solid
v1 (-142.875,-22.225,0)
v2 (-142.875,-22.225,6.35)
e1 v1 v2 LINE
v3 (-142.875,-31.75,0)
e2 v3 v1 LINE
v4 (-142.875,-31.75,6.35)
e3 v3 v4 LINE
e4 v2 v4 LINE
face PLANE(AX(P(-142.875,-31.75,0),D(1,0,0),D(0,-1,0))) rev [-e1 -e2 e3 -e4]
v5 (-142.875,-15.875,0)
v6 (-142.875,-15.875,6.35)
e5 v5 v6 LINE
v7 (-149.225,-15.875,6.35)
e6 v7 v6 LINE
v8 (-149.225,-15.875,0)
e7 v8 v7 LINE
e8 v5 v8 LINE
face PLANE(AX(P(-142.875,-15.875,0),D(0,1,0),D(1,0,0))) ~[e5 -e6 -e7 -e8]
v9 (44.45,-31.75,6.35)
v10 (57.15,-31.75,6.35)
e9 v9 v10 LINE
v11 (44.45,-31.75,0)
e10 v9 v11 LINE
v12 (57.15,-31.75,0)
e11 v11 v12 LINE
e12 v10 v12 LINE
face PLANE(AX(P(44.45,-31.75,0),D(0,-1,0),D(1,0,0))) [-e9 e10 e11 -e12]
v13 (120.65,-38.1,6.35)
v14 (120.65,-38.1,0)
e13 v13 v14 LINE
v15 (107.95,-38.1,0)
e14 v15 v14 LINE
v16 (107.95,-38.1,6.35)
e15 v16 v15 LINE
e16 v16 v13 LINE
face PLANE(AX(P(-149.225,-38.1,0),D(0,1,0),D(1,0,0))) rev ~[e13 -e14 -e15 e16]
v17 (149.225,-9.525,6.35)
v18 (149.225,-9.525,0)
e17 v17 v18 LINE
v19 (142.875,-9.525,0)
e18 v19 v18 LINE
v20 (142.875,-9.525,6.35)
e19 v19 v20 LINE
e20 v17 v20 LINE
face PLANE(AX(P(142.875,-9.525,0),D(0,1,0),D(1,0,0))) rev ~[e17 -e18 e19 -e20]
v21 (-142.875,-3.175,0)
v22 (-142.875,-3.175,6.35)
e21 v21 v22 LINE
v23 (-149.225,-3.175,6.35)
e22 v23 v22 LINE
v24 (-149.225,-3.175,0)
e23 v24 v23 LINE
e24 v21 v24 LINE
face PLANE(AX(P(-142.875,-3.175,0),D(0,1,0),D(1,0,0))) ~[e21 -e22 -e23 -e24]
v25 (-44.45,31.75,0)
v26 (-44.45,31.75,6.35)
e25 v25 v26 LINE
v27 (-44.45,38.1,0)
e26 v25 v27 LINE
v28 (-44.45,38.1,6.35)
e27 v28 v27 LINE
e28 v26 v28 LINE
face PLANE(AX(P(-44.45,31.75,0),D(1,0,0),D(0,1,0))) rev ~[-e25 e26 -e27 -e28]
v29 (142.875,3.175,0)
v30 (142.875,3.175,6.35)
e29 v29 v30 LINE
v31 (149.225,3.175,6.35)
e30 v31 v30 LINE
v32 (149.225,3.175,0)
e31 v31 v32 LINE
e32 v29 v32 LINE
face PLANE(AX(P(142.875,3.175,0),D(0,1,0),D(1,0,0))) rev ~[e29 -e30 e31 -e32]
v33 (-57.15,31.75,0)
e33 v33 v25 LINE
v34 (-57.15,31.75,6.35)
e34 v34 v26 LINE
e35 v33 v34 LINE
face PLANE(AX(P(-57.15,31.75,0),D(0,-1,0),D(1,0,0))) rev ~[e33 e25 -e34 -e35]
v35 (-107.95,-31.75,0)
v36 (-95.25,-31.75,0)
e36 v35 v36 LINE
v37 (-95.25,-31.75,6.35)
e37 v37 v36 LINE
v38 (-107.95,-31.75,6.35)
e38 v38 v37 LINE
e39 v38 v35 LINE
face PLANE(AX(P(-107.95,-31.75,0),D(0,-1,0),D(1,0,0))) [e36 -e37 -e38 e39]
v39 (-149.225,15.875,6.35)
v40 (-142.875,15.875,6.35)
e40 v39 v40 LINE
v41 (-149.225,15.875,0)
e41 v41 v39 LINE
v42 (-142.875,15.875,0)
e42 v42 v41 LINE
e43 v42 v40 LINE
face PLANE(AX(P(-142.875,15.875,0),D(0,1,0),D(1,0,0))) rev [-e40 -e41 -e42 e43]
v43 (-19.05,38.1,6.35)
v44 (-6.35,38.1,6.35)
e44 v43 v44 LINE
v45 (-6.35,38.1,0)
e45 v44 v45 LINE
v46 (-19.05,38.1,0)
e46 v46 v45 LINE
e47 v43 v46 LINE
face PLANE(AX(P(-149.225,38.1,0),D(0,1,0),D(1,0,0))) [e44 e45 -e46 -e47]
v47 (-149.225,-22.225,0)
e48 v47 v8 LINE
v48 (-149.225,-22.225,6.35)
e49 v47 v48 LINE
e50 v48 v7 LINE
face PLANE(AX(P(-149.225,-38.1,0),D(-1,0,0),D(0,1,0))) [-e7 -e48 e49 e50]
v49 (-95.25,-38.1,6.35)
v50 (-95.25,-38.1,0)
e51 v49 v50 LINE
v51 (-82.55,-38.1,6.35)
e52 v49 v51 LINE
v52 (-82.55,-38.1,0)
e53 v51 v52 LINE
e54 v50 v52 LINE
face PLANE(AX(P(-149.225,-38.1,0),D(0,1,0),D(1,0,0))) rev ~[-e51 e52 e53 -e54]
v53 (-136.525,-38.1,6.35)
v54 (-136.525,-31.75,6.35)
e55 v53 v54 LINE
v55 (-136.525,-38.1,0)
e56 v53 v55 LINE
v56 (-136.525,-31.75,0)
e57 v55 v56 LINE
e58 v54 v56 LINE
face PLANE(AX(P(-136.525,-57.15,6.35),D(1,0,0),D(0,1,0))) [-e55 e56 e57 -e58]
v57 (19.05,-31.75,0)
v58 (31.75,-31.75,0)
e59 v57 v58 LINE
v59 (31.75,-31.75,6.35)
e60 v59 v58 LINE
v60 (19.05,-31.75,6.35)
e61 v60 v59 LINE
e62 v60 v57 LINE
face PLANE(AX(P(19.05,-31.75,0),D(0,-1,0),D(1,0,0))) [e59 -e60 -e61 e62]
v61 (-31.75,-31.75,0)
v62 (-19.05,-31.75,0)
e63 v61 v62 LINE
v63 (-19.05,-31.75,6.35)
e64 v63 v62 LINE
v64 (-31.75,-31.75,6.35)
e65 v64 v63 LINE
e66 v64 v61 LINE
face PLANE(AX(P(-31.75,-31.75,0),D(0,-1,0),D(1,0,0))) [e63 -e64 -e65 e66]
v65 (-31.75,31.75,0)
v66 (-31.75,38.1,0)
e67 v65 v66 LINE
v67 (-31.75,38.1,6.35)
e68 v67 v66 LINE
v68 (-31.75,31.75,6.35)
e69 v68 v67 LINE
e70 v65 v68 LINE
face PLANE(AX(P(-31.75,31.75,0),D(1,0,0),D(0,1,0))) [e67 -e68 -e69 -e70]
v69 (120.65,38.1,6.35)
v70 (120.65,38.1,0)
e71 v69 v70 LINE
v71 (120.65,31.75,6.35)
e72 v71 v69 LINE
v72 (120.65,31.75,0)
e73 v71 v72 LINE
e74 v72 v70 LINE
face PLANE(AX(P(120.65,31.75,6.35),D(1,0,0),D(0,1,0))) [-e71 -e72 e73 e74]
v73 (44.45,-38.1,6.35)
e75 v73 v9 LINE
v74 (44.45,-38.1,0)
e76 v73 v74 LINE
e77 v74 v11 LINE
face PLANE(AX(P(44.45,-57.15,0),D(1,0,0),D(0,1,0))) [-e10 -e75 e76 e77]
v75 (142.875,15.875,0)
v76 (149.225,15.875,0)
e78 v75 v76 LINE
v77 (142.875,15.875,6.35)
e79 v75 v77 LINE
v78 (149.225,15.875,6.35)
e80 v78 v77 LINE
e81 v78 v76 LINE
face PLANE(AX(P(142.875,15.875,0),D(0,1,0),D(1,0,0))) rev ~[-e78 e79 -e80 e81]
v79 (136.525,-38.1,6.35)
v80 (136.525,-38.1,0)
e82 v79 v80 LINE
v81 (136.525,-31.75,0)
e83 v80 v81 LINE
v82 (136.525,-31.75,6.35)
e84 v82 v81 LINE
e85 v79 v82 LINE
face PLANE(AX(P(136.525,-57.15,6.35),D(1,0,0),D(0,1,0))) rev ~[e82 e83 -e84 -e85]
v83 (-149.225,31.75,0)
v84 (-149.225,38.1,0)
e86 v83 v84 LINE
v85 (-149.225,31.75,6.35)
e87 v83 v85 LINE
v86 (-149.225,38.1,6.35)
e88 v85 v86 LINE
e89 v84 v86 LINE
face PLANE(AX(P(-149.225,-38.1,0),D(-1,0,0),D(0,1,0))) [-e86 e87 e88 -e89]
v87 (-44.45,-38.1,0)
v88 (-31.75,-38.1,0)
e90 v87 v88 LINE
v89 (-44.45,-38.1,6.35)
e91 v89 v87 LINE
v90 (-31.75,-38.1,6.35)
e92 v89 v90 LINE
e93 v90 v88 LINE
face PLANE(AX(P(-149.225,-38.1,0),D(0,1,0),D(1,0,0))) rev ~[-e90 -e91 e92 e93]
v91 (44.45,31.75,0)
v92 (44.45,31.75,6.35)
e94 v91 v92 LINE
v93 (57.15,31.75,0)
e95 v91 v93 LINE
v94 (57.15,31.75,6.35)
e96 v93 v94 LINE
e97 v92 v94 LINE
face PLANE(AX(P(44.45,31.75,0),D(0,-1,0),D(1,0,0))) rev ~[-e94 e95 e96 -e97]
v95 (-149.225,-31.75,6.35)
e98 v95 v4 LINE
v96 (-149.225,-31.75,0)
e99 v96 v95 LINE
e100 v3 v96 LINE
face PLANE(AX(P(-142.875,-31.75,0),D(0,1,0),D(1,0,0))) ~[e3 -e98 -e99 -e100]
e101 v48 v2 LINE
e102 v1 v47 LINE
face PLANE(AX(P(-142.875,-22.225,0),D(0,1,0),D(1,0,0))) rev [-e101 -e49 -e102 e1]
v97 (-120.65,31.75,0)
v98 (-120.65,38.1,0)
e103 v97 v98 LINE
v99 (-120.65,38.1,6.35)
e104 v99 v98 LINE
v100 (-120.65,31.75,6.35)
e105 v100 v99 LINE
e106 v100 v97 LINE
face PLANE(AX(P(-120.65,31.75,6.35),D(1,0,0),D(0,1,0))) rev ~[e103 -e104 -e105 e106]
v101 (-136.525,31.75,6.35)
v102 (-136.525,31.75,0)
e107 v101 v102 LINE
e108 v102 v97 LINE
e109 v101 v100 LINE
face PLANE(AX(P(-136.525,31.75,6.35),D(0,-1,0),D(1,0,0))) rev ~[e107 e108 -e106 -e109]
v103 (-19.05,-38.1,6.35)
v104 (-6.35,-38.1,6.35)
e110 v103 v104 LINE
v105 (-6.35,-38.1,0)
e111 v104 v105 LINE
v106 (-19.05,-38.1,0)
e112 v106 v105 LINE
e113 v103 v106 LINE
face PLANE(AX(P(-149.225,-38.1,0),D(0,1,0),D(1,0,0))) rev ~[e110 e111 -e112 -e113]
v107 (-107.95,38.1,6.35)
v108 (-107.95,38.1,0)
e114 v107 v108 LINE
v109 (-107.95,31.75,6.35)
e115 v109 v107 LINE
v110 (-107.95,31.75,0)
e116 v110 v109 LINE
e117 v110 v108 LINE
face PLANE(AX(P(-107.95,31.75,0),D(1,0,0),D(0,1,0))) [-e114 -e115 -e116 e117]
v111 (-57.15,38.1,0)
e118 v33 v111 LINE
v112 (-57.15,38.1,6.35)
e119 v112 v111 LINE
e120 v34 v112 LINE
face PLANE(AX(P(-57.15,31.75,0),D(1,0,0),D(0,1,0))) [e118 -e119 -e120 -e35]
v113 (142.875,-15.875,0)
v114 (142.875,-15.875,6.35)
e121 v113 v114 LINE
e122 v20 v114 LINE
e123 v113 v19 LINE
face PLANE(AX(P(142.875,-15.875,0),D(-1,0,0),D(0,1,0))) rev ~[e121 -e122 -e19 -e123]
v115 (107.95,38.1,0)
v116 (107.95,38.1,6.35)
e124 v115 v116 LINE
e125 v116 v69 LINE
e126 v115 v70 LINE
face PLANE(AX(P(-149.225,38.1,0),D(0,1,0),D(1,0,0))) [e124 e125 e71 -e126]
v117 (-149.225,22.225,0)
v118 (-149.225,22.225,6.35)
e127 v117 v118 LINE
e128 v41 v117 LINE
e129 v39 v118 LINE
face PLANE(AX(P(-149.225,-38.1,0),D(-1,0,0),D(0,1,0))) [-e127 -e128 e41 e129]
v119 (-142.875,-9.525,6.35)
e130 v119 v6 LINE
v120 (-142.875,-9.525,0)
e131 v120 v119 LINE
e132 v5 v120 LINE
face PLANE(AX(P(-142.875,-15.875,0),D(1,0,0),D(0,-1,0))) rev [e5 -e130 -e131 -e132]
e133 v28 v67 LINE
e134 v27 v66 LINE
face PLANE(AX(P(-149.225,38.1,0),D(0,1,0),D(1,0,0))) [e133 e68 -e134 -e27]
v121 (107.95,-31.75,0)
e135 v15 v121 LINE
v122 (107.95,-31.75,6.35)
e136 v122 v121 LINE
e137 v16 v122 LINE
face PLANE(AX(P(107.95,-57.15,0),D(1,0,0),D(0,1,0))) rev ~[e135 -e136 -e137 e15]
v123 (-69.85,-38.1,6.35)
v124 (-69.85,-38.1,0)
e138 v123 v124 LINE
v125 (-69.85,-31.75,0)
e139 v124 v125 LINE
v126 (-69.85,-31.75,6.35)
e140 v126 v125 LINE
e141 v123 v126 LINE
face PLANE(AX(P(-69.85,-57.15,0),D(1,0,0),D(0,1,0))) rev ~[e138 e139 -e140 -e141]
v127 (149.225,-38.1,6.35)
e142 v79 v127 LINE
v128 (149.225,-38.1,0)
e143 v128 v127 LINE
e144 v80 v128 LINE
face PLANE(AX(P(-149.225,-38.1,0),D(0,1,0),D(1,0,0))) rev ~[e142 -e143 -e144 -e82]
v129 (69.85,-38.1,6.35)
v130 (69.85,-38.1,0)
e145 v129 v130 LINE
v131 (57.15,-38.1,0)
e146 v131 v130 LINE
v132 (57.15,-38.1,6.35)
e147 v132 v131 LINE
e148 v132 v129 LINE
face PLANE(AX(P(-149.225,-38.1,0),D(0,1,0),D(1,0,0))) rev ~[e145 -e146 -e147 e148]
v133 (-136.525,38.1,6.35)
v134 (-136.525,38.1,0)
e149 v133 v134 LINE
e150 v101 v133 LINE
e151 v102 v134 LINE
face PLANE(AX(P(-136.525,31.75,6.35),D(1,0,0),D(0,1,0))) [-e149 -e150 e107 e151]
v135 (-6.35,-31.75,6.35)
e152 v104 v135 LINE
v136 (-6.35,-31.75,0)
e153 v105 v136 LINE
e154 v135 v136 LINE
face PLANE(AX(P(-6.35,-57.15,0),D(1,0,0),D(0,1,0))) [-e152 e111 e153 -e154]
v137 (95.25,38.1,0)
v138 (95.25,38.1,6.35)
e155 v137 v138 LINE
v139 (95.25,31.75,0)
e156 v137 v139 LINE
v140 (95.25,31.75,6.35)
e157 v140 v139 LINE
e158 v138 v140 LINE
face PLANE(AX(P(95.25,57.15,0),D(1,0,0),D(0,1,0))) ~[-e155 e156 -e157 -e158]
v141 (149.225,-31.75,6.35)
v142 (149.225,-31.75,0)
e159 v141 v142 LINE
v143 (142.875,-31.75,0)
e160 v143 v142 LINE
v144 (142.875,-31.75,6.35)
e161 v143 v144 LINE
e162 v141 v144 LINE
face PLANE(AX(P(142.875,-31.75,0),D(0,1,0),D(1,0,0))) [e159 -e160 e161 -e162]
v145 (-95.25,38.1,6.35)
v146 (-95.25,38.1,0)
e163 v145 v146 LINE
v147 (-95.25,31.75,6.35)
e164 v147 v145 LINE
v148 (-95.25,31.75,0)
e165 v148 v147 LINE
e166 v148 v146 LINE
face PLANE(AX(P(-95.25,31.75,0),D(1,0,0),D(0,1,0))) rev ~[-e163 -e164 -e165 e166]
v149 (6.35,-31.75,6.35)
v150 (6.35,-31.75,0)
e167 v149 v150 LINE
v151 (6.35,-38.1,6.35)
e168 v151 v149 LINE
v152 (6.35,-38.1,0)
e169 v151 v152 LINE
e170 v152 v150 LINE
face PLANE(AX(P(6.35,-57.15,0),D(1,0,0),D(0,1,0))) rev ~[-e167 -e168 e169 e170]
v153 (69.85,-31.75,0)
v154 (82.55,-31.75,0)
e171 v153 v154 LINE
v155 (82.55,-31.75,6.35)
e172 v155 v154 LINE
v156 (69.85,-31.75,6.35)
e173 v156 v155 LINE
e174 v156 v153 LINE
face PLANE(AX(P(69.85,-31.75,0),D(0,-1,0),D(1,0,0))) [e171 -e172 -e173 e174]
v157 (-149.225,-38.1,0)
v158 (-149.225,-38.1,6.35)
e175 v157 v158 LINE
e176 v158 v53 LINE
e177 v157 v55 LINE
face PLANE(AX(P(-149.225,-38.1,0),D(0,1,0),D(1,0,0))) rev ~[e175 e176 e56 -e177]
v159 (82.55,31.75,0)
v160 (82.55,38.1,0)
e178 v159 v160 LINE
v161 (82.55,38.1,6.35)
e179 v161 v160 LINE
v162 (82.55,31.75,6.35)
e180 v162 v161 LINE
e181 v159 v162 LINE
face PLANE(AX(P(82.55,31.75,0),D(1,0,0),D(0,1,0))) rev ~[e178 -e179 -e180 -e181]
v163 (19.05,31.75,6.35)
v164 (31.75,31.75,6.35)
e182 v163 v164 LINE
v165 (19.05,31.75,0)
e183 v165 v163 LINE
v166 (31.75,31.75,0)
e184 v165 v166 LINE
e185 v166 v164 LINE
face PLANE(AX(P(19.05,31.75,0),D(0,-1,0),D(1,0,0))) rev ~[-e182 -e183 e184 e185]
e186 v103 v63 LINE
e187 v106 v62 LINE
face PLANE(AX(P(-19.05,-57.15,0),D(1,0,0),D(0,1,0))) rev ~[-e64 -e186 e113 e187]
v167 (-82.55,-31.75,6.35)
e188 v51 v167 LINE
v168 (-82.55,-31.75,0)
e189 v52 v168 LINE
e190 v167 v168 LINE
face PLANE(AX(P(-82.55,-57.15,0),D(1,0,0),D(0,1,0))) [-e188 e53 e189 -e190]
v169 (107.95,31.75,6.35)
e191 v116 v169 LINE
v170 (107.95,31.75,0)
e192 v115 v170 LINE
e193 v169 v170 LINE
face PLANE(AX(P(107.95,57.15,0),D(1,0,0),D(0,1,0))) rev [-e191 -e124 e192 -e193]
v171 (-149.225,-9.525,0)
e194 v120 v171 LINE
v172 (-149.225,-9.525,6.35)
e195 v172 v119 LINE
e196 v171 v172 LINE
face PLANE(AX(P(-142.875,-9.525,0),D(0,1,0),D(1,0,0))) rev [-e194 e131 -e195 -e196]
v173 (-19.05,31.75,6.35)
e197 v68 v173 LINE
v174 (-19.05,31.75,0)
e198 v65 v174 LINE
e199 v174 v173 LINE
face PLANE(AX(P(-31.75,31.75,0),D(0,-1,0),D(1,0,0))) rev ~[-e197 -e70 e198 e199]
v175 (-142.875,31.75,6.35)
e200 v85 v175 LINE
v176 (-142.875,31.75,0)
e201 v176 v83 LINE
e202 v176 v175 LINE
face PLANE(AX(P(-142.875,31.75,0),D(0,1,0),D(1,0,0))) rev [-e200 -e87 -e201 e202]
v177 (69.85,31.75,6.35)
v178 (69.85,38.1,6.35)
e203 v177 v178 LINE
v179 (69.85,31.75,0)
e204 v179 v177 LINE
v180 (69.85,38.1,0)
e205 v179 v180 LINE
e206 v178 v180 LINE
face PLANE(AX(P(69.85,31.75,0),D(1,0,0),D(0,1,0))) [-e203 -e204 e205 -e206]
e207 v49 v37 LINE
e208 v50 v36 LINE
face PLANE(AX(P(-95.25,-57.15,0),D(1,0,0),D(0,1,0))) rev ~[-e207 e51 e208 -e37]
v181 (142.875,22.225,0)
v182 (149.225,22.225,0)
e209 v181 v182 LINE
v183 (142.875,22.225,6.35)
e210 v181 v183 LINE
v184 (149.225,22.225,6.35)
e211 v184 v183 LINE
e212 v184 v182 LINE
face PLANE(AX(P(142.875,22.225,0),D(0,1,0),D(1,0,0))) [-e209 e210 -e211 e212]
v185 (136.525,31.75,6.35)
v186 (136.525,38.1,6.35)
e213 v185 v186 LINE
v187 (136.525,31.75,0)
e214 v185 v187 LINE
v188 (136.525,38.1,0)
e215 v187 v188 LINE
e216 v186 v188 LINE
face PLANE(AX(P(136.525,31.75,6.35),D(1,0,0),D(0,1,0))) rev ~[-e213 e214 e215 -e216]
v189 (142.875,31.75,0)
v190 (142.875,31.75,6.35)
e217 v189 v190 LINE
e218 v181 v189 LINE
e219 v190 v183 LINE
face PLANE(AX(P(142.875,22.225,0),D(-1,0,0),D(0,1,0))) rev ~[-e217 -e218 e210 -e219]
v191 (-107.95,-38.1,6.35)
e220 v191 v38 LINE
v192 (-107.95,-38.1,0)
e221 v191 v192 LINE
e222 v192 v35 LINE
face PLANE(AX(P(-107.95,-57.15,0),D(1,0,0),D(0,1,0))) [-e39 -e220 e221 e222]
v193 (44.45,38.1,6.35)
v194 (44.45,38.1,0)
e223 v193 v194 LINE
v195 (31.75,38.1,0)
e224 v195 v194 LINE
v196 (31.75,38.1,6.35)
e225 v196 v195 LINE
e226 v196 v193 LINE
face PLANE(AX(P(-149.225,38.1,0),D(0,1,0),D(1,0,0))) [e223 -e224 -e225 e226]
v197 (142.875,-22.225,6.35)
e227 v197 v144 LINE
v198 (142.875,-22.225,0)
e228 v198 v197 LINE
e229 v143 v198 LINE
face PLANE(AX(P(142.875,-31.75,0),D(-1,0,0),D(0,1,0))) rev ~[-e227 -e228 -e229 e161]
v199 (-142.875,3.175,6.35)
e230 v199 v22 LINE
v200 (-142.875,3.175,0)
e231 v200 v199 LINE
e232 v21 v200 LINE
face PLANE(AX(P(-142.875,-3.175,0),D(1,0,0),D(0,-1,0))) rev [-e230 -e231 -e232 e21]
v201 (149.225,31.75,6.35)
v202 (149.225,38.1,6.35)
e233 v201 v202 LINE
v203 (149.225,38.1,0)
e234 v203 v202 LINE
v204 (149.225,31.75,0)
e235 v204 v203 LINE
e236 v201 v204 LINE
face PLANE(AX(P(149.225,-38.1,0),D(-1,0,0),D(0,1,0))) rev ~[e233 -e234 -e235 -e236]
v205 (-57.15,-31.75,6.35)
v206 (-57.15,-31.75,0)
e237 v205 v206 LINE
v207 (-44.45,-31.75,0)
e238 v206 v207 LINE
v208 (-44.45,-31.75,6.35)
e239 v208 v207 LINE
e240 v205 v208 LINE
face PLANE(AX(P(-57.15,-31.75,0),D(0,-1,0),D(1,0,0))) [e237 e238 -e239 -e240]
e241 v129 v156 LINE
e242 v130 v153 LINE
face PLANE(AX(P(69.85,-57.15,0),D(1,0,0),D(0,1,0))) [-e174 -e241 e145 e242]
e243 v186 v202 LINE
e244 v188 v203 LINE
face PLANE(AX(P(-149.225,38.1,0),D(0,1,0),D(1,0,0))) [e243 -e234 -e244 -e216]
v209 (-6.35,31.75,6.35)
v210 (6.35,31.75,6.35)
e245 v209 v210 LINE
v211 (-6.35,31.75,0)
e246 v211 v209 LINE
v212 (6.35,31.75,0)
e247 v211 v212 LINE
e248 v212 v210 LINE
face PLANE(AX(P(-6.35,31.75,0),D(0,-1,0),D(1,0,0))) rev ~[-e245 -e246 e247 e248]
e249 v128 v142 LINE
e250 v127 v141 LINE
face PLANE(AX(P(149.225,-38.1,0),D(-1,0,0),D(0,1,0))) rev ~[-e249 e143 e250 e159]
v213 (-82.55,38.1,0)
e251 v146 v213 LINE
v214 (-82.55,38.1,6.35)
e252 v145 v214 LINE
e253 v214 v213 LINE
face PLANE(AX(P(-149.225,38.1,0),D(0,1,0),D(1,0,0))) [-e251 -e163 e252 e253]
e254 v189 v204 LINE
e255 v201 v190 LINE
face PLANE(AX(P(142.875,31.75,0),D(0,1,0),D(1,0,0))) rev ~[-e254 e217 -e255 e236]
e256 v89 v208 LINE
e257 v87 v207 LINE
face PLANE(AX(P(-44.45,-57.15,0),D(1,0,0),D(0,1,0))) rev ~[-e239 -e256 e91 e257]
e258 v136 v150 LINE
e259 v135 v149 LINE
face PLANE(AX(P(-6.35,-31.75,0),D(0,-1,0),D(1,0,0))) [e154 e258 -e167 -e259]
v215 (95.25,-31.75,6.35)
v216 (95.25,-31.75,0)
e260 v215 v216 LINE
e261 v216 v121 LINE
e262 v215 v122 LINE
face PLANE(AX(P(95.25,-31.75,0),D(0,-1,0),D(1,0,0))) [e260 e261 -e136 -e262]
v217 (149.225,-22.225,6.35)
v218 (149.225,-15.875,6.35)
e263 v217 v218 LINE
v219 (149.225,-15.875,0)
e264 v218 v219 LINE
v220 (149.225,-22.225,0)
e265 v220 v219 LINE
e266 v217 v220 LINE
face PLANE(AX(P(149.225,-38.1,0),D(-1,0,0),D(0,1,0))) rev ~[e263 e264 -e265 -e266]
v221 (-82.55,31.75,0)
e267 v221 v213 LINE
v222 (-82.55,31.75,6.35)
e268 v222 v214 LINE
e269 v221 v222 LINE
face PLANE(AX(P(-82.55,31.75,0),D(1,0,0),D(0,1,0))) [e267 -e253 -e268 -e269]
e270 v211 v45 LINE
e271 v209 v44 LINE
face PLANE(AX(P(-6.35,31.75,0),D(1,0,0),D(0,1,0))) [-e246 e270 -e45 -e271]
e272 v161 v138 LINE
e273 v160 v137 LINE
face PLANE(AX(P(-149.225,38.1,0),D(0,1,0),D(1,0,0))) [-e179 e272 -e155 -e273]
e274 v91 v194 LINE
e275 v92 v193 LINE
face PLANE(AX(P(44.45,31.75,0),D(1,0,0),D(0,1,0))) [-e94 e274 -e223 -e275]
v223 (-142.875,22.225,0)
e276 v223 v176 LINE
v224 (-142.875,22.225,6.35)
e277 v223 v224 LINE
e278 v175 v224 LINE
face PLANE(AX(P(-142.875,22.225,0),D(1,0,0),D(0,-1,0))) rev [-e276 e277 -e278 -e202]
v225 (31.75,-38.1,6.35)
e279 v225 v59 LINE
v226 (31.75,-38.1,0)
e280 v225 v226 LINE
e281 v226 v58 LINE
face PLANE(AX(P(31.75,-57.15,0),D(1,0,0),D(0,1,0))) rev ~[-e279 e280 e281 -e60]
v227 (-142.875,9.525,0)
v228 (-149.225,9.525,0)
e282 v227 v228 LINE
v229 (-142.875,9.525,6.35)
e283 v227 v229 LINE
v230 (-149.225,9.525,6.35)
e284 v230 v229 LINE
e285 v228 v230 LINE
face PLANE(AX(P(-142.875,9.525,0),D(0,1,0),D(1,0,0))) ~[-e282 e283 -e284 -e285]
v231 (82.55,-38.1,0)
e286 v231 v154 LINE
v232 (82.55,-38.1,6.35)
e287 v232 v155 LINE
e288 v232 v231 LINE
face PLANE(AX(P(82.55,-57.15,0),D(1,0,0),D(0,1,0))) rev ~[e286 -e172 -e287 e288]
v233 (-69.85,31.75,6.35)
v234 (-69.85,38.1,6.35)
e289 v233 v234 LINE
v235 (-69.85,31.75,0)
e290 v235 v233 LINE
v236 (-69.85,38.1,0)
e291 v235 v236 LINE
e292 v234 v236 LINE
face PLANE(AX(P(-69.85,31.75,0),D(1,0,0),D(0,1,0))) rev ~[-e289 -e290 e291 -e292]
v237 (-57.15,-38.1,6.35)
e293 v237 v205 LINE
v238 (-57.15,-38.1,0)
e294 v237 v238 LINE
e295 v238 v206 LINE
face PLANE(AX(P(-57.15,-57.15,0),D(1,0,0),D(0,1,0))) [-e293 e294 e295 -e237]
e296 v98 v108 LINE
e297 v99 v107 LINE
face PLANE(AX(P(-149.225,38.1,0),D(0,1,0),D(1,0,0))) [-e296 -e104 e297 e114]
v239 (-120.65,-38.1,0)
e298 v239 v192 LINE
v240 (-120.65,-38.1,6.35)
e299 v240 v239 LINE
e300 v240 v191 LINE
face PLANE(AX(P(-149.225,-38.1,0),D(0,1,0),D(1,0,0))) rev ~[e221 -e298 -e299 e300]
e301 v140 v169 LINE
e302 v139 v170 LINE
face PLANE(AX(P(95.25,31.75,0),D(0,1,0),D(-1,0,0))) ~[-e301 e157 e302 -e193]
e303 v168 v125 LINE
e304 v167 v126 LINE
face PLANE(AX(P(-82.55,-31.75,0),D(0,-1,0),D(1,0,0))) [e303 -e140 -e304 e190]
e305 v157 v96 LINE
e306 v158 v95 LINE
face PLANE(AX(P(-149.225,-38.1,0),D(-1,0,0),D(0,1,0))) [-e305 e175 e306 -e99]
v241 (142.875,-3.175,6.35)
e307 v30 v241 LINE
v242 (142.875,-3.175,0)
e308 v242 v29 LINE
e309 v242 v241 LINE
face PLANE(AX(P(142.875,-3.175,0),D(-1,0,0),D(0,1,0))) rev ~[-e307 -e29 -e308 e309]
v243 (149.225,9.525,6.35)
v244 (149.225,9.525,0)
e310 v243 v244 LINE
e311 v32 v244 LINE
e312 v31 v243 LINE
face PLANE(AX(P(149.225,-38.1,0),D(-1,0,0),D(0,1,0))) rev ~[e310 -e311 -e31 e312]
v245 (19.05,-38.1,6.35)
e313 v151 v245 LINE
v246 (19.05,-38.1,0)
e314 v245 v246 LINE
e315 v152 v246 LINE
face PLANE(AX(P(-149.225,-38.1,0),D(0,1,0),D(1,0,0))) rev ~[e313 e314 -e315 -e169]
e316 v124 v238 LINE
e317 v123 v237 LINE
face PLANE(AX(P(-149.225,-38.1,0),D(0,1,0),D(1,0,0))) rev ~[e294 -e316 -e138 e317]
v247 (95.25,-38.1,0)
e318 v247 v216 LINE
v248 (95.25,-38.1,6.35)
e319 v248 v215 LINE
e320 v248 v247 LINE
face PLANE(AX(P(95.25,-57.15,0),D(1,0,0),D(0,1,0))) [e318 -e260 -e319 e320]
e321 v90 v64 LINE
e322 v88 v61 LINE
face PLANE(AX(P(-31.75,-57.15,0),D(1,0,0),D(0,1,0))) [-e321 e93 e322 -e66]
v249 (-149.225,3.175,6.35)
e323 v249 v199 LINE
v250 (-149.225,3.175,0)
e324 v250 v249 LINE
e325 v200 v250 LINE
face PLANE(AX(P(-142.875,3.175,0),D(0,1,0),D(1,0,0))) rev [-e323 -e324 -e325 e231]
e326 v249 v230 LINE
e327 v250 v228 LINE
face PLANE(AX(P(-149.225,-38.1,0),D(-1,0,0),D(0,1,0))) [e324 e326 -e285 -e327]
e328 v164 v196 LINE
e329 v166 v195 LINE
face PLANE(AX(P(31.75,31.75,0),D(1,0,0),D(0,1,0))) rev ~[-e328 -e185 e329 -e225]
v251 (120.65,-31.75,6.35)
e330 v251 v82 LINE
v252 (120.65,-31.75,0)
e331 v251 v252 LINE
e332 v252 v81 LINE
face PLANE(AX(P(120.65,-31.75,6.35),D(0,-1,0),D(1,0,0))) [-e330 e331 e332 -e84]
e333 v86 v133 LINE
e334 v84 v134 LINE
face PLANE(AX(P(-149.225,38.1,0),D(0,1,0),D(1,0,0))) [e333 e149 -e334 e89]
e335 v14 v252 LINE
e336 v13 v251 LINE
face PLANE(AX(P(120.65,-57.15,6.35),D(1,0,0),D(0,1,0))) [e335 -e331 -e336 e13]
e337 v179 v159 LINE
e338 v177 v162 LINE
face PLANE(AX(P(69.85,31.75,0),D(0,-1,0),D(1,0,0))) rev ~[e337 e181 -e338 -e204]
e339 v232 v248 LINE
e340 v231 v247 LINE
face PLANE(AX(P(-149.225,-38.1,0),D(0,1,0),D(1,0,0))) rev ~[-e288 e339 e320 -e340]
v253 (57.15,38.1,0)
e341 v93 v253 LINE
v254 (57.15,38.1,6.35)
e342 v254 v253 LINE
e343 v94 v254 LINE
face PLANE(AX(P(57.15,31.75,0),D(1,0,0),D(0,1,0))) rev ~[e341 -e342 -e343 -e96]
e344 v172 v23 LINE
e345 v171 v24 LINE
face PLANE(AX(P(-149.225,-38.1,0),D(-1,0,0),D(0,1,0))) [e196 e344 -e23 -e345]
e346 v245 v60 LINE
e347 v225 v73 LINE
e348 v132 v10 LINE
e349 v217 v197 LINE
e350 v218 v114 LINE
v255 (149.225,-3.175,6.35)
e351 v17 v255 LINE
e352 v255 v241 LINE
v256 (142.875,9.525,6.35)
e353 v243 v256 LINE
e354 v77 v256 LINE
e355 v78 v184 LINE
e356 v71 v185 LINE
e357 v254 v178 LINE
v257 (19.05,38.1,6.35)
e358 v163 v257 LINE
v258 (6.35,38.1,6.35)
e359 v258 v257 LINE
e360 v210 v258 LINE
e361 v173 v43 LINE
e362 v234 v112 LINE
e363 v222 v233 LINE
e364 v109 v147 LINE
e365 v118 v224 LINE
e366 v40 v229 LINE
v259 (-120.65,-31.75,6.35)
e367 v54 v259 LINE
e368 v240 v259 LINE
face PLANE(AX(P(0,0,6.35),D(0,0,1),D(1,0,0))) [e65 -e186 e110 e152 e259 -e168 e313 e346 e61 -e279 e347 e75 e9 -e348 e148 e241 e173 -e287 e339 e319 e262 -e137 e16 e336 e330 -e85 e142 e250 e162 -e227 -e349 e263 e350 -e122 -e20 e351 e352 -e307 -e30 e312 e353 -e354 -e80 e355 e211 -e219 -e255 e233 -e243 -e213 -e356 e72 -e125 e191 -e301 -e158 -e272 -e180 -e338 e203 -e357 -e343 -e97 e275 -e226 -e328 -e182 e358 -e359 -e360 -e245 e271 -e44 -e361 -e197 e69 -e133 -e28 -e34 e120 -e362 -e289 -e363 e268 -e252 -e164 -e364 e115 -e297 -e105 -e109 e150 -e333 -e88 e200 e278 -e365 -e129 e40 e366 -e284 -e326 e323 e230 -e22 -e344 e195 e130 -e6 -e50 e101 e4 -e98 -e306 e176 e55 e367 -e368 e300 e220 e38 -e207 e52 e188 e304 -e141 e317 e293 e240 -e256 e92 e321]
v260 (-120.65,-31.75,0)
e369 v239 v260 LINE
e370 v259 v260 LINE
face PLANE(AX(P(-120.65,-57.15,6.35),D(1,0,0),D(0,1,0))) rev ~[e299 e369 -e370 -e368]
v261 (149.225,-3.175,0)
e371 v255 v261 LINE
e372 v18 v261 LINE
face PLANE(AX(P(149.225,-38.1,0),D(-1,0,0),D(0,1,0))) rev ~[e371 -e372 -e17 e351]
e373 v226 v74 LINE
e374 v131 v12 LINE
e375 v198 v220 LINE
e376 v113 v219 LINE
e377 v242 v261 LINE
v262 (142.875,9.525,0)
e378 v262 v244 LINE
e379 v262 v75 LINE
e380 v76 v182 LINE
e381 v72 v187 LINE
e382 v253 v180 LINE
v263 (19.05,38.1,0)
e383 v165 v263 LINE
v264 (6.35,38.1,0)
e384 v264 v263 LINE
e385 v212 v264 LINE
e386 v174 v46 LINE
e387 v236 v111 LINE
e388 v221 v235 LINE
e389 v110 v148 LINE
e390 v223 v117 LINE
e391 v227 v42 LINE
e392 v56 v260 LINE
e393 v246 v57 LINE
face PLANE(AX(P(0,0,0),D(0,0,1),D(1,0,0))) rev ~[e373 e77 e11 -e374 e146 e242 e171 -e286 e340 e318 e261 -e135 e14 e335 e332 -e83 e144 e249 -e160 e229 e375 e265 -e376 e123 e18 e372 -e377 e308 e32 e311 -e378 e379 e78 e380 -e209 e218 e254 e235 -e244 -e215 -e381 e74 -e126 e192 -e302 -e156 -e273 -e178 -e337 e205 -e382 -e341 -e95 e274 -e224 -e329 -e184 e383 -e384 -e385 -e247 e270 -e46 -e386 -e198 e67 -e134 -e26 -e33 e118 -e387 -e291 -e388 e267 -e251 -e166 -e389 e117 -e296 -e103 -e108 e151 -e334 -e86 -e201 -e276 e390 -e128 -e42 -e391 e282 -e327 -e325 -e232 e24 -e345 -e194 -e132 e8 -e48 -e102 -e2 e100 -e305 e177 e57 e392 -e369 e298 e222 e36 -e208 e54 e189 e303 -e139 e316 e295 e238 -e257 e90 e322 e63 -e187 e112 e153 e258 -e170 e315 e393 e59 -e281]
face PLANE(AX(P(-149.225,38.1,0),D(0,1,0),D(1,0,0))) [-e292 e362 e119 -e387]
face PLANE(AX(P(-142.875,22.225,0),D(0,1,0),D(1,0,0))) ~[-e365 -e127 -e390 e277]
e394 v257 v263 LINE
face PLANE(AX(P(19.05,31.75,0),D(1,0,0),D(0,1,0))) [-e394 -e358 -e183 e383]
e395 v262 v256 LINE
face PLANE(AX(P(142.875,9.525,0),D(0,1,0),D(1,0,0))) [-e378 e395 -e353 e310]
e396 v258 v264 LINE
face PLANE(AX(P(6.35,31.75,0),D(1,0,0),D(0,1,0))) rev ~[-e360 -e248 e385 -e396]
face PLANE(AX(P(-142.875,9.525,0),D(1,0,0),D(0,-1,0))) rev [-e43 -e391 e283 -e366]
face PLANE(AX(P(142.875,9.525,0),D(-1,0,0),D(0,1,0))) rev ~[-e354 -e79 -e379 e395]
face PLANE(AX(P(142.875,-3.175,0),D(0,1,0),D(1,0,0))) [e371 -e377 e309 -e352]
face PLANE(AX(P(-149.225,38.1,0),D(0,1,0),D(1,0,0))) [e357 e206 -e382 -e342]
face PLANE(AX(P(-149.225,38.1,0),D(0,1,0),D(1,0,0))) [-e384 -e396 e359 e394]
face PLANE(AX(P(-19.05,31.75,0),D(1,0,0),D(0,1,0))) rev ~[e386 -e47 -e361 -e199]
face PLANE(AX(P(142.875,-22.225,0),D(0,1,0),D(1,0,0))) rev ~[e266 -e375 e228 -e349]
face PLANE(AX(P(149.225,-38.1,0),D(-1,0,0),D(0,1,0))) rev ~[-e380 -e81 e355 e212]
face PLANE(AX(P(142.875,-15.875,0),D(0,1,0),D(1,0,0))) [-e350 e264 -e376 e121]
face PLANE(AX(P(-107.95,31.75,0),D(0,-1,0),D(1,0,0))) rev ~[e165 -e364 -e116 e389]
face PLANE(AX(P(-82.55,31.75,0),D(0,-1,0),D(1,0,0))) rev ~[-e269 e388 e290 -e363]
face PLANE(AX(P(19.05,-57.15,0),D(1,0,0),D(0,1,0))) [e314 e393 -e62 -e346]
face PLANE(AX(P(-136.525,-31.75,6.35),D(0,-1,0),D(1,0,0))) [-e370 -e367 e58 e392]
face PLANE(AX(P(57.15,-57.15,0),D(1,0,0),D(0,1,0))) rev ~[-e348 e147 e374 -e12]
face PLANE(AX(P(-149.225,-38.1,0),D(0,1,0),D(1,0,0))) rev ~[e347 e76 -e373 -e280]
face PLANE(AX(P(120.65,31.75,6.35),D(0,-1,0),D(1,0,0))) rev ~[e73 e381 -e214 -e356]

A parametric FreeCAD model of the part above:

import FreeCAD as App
import Part
import Sketcher

V = App.Vector
Q = App.Units.Quantity

doc = App.newDocument("Part")
body = doc.addObject("PartDesign::Body", "Body")

# Sketch on XY plane
sketch1 = body.newObject("Sketcher::SketchObject", "Sketch")
sketch1.AttachmentSupport = (doc.getObject("XY_Plane"), [""])
sketch1.MapMode = "FlatFace"
sketch1.addGeometry([
    Part.LineSegment(V(-149, 38, 0), V(-149, -38, 0)),
    Part.LineSegment(V(-149, -38, 0), V(149, -38, 0)),
    Part.LineSegment(V(149, -38, 0), V(149, 38, 0)),
    Part.LineSegment(V(149, 38, 0), V(-149, 38, 0)),
], False)
sketch1.addConstraint([
    Sketcher.Constraint("Coincident", 0, 2, 1, 1),
    Sketcher.Constraint("Coincident", 1, 2, 2, 1),
    Sketcher.Constraint("Coincident", 2, 2, 3, 1),
    Sketcher.Constraint("Coincident", 3, 2, 0, 1),
    Sketcher.Constraint("Vertical", 0),
    Sketcher.Constraint("Horizontal", 1),
    Sketcher.Constraint("Vertical", 2),
    Sketcher.Constraint("Horizontal", 3),
    Sketcher.Constraint("Symmetric", 0, 2, 2, 2, -1, 1),
    Sketcher.Constraint("DistanceY", 0, 2, 0, 1, Q("3 in")),
    Sketcher.Constraint("DistanceX", 1, 1, 1, 2, Q("11.75 in")),
])
pad1 = body.newObject("PartDesign::Pad", "Pad")
pad1.Profile = sketch1
pad1.Length = Q("0.25 in")

# Sketch on XY plane
sketch2 = body.newObject("Sketcher::SketchObject", "Sketch001")
sketch2.AttachmentSupport = (doc.getObject("XY_Plane"), [""])
sketch2.MapMode = "FlatFace"
sketch2.addGeometry([
    Part.LineSegment(V(95, -32, 0), V(95, -57, 0)),
    Part.LineSegment(V(95, -57, 0), V(108, -57, 0)),
    Part.LineSegment(V(108, -57, 0), V(108, -32, 0)),
    Part.LineSegment(V(108, -32, 0), V(95, -32, 0)),
], False)
sketch2.addConstraint([
    Sketcher.Constraint("Coincident", 0, 2, 1, 1),
    Sketcher.Constraint("Coincident", 1, 2, 2, 1),
    Sketcher.Constraint("Coincident", 2, 2, 3, 1),
    Sketcher.Constraint("Coincident", 3, 2, 0, 1),
    Sketcher.Constraint("Vertical", 0),
    Sketcher.Constraint("Horizontal", 1),
    Sketcher.Constraint("Vertical", 2),
    Sketcher.Constraint("Horizontal", 3),
    Sketcher.Constraint("DistanceY", 0, 2, 0, 1, Q("1 in")),
    Sketcher.Constraint("DistanceX", 1, 1, 1, 2, Q("0.5 in")),
    Sketcher.Constraint("DistanceX", -1, 1, 0, 2, Q("3.75 in")),
    Sketcher.Constraint("DistanceY", 0, 2, -1, 1, Q("2.25 in")),
])
pocket1 = body.newObject("PartDesign::Pocket", "Pocket")
pocket1.Profile = sketch2
pocket1.Length = 310.285797
pocket1.Midplane = True
doc.recompute()

linearpattern = body.newObject("PartDesign::LinearPattern", "LinearPattern")
linearpattern.Originals = [pocket1]
linearpattern.Direction = (doc.getObject("X_Axis"), [""])
linearpattern.Mode = "offset"
linearpattern.Offset = Q("1 in")
linearpattern.Occurrences = 9
linearpattern.Reversed = True
body.Tip = linearpattern
doc.recompute()

mirrored = body.newObject("PartDesign::Mirrored", "Mirrored")
mirrored.Originals = [pocket1]
mirrored.MirrorPlane = (doc.getObject("XZ_Plane"), [""])
body.Tip = mirrored

# Sketch on XY plane
sketch3 = body.newObject("Sketcher::SketchObject", "Sketch002")
sketch3.AttachmentSupport = (doc.getObject("XY_Plane"), [""])
sketch3.MapMode = "FlatFace"
sketch3.addGeometry([
    Part.LineSegment(V(70, 57, 0), V(70, 32, 0)),
    Part.LineSegment(V(70, 32, 0), V(83, 32, 0)),
    Part.LineSegment(V(83, 32, 0), V(83, 57, 0)),
    Part.LineSegment(V(83, 57, 0), V(70, 57, 0)),
], False)
sketch3.addConstraint([
    Sketcher.Constraint("Coincident", 0, 2, 1, 1),
    Sketcher.Constraint("Coincident", 1, 2, 2, 1),
    Sketcher.Constraint("Coincident", 2, 2, 3, 1),
    Sketcher.Constraint("Coincident", 3, 2, 0, 1),
    Sketcher.Constraint("Vertical", 0),
    Sketcher.Constraint("Horizontal", 1),
    Sketcher.Constraint("Vertical", 2),
    Sketcher.Constraint("Horizontal", 3),
    Sketcher.Constraint("DistanceY", 0, 2, 0, 1, Q("1 in")),
    Sketcher.Constraint("DistanceX", 1, 1, 1, 2, Q("0.5 in")),
    Sketcher.Constraint("DistanceX", -1, 1, 0, 2, Q("2.75 in")),
    Sketcher.Constraint("DistanceY", -1, 1, 0, 2, Q("1.25 in")),
])
pocket2 = body.newObject("PartDesign::Pocket", "Pocket001")
pocket2.Profile = sketch3
pocket2.Length = 310.285797
pocket2.Midplane = True

# Sketch on XY plane
sketch4 = body.newObject("Sketcher::SketchObject", "Sketch003")
sketch4.AttachmentSupport = (doc.getObject("XY_Plane"), [""])
sketch4.MapMode = "FlatFace"
sketch4.addGeometry([
    Part.LineSegment(V(44, 57, 0), V(44, 32, 0)),
    Part.LineSegment(V(44, 32, 0), V(57, 32, 0)),
    Part.LineSegment(V(57, 32, 0), V(57, 57, 0)),
    Part.LineSegment(V(57, 57, 0), V(44, 57, 0)),
], False)
sketch4.addConstraint([
    Sketcher.Constraint("Coincident", 0, 2, 1, 1),
    Sketcher.Constraint("Coincident", 1, 2, 2, 1),
    Sketcher.Constraint("Coincident", 2, 2, 3, 1),
    Sketcher.Constraint("Coincident", 3, 2, 0, 1),
    Sketcher.Constraint("Vertical", 0),
    Sketcher.Constraint("Horizontal", 1),
    Sketcher.Constraint("Vertical", 2),
    Sketcher.Constraint("Horizontal", 3),
    Sketcher.Constraint("DistanceY", 0, 2, 0, 1, Q("1 in")),
    Sketcher.Constraint("DistanceX", 1, 1, 1, 2, Q("0.5 in")),
    Sketcher.Constraint("DistanceX", -1, 1, 0, 2, Q("1.75 in")),
    Sketcher.Constraint("DistanceY", -1, 1, 0, 2, Q("1.25 in")),
])
pocket3 = body.newObject("PartDesign::Pocket", "Pocket002")
pocket3.Profile = sketch4
pocket3.Length = 310.285797
pocket3.Midplane = True

# Sketch on XY plane
sketch5 = body.newObject("Sketcher::SketchObject", "Sketch004")
sketch5.AttachmentSupport = (doc.getObject("XY_Plane"), [""])
sketch5.MapMode = "FlatFace"
sketch5.addGeometry([
    Part.LineSegment(V(19, 57, 0), V(19, 32, 0)),
    Part.LineSegment(V(19, 32, 0), V(32, 32, 0)),
    Part.LineSegment(V(32, 32, 0), V(32, 57, 0)),
    Part.LineSegment(V(32, 57, 0), V(19, 57, 0)),
], False)
sketch5.addConstraint([
    Sketcher.Constraint("Coincident", 0, 2, 1, 1),
    Sketcher.Constraint("Coincident", 1, 2, 2, 1),
    Sketcher.Constraint("Coincident", 2, 2, 3, 1),
    Sketcher.Constraint("Coincident", 3, 2, 0, 1),
    Sketcher.Constraint("Vertical", 0),
    Sketcher.Constraint("Horizontal", 1),
    Sketcher.Constraint("Vertical", 2),
    Sketcher.Constraint("Horizontal", 3),
    Sketcher.Constraint("DistanceY", 0, 2, 0, 1, Q("1 in")),
    Sketcher.Constraint("DistanceX", 1, 1, 1, 2, Q("0.5 in")),
    Sketcher.Constraint("DistanceX", -1, 1, 0, 2, Q("0.75 in")),
    Sketcher.Constraint("DistanceY", -1, 1, 0, 2, Q("1.25 in")),
])
pocket4 = body.newObject("PartDesign::Pocket", "Pocket003")
pocket4.Profile = sketch5
pocket4.Length = 310.285797
pocket4.Midplane = True

# Sketch on XY plane
sketch6 = body.newObject("Sketcher::SketchObject", "Sketch005")
sketch6.AttachmentSupport = (doc.getObject("XY_Plane"), [""])
sketch6.MapMode = "FlatFace"
sketch6.addGeometry([
    Part.LineSegment(V(-6, 57, 0), V(-6, 32, 0)),
    Part.LineSegment(V(-6, 32, 0), V(6, 32, 0)),
    Part.LineSegment(V(6, 32, 0), V(6, 57, 0)),
    Part.LineSegment(V(6, 57, 0), V(-6, 57, 0)),
], False)
sketch6.addConstraint([
    Sketcher.Constraint("Coincident", 0, 2, 1, 1),
    Sketcher.Constraint("Coincident", 1, 2, 2, 1),
    Sketcher.Constraint("Coincident", 2, 2, 3, 1),
    Sketcher.Constraint("Coincident", 3, 2, 0, 1),
    Sketcher.Constraint("Vertical", 0),
    Sketcher.Constraint("Horizontal", 1),
    Sketcher.Constraint("Vertical", 2),
    Sketcher.Constraint("Horizontal", 3),
    Sketcher.Constraint("DistanceY", 0, 2, 0, 1, Q("1 in")),
    Sketcher.Constraint("DistanceX", 1, 1, 1, 2, Q("0.5 in")),
    Sketcher.Constraint("DistanceX", 0, 2, -1, 1, Q("0.25 in")),
    Sketcher.Constraint("DistanceY", -1, 1, 0, 2, Q("1.25 in")),
])
pocket5 = body.newObject("PartDesign::Pocket", "Pocket004")
pocket5.Profile = sketch6
pocket5.Length = 310.285797
pocket5.Midplane = True

# Sketch on XY plane
sketch7 = body.newObject("Sketcher::SketchObject", "Sketch006")
sketch7.AttachmentSupport = (doc.getObject("XY_Plane"), [""])
sketch7.MapMode = "FlatFace"
sketch7.addGeometry([
    Part.LineSegment(V(-32, 57, 0), V(-32, 32, 0)),
    Part.LineSegment(V(-32, 32, 0), V(-19, 32, 0)),
    Part.LineSegment(V(-19, 32, 0), V(-19, 57, 0)),
    Part.LineSegment(V(-19, 57, 0), V(-32, 57, 0)),
], False)
sketch7.addConstraint([
    Sketcher.Constraint("Coincident", 0, 2, 1, 1),
    Sketcher.Constraint("Coincident", 1, 2, 2, 1),
    Sketcher.Constraint("Coincident", 2, 2, 3, 1),
    Sketcher.Constraint("Coincident", 3, 2, 0, 1),
    Sketcher.Constraint("Vertical", 0),
    Sketcher.Constraint("Horizontal", 1),
    Sketcher.Constraint("Vertical", 2),
    Sketcher.Constraint("Horizontal", 3),
    Sketcher.Constraint("DistanceY", 0, 2, 0, 1, Q("1 in")),
    Sketcher.Constraint("DistanceX", 1, 1, 1, 2, Q("0.5 in")),
    Sketcher.Constraint("DistanceX", 0, 2, -1, 1, Q("1.25 in")),
    Sketcher.Constraint("DistanceY", -1, 1, 0, 2, Q("1.25 in")),
])
pocket6 = body.newObject("PartDesign::Pocket", "Pocket005")
pocket6.Profile = sketch7
pocket6.Length = 310.285797
pocket6.Midplane = True

# Sketch on XY plane
sketch8 = body.newObject("Sketcher::SketchObject", "Sketch007")
sketch8.AttachmentSupport = (doc.getObject("XY_Plane"), [""])
sketch8.MapMode = "FlatFace"
sketch8.addGeometry([
    Part.LineSegment(V(-57, 57, 0), V(-57, 32, 0)),
    Part.LineSegment(V(-57, 32, 0), V(-44, 32, 0)),
    Part.LineSegment(V(-44, 32, 0), V(-44, 57, 0)),
    Part.LineSegment(V(-44, 57, 0), V(-57, 57, 0)),
], False)
sketch8.addConstraint([
    Sketcher.Constraint("Coincident", 0, 2, 1, 1),
    Sketcher.Constraint("Coincident", 1, 2, 2, 1),
    Sketcher.Constraint("Coincident", 2, 2, 3, 1),
    Sketcher.Constraint("Coincident", 3, 2, 0, 1),
    Sketcher.Constraint("Vertical", 0),
    Sketcher.Constraint("Horizontal", 1),
    Sketcher.Constraint("Vertical", 2),
    Sketcher.Constraint("Horizontal", 3),
    Sketcher.Constraint("DistanceY", 0, 2, 0, 1, Q("1 in")),
    Sketcher.Constraint("DistanceX", 1, 1, 1, 2, Q("0.5 in")),
    Sketcher.Constraint("DistanceX", 0, 2, -1, 1, Q("2.25 in")),
    Sketcher.Constraint("DistanceY", -1, 1, 0, 2, Q("1.25 in")),
])
pocket7 = body.newObject("PartDesign::Pocket", "Pocket006")
pocket7.Profile = sketch8
pocket7.Length = 310.285797
pocket7.Midplane = True

# Sketch on XY plane
sketch9 = body.newObject("Sketcher::SketchObject", "Sketch008")
sketch9.AttachmentSupport = (doc.getObject("XY_Plane"), [""])
sketch9.MapMode = "FlatFace"
sketch9.addGeometry([
    Part.LineSegment(V(-83, 57, 0), V(-83, 32, 0)),
    Part.LineSegment(V(-83, 32, 0), V(-70, 32, 0)),
    Part.LineSegment(V(-70, 32, 0), V(-70, 57, 0)),
    Part.LineSegment(V(-70, 57, 0), V(-83, 57, 0)),
], False)
sketch9.addConstraint([
    Sketcher.Constraint("Coincident", 0, 2, 1, 1),
    Sketcher.Constraint("Coincident", 1, 2, 2, 1),
    Sketcher.Constraint("Coincident", 2, 2, 3, 1),
    Sketcher.Constraint("Coincident", 3, 2, 0, 1),
    Sketcher.Constraint("Vertical", 0),
    Sketcher.Constraint("Horizontal", 1),
    Sketcher.Constraint("Vertical", 2),
    Sketcher.Constraint("Horizontal", 3),
    Sketcher.Constraint("DistanceY", 0, 2, 0, 1, Q("1 in")),
    Sketcher.Constraint("DistanceX", 1, 1, 1, 2, Q("0.5 in")),
    Sketcher.Constraint("DistanceX", 0, 2, -1, 1, Q("3.25 in")),
    Sketcher.Constraint("DistanceY", -1, 1, 0, 2, Q("1.25 in")),
])
pocket8 = body.newObject("PartDesign::Pocket", "Pocket007")
pocket8.Profile = sketch9
pocket8.Length = 310.285797
pocket8.Midplane = True

# Sketch on XY plane
sketch10 = body.newObject("Sketcher::SketchObject", "Sketch009")
sketch10.AttachmentSupport = (doc.getObject("XY_Plane"), [""])
sketch10.MapMode = "FlatFace"
sketch10.addGeometry([
    Part.LineSegment(V(-108, 57, 0), V(-108, 32, 0)),
    Part.LineSegment(V(-108, 32, 0), V(-95, 32, 0)),
    Part.LineSegment(V(-95, 32, 0), V(-95, 57, 0)),
    Part.LineSegment(V(-95, 57, 0), V(-108, 57, 0)),
], False)
sketch10.addConstraint([
    Sketcher.Constraint("Coincident", 0, 2, 1, 1),
    Sketcher.Constraint("Coincident", 1, 2, 2, 1),
    Sketcher.Constraint("Coincident", 2, 2, 3, 1),
    Sketcher.Constraint("Coincident", 3, 2, 0, 1),
    Sketcher.Constraint("Vertical", 0),
    Sketcher.Constraint("Horizontal", 1),
    Sketcher.Constraint("Vertical", 2),
    Sketcher.Constraint("Horizontal", 3),
    Sketcher.Constraint("DistanceY", 0, 2, 0, 1, Q("1 in")),
    Sketcher.Constraint("DistanceX", 1, 1, 1, 2, Q("0.5 in")),
    Sketcher.Constraint("DistanceX", 0, 2, -1, 1, Q("4.25 in")),
    Sketcher.Constraint("DistanceY", -1, 1, 0, 2, Q("1.25 in")),
])
pocket9 = body.newObject("PartDesign::Pocket", "Pocket008")
pocket9.Profile = sketch10
pocket9.Length = 310.285797
pocket9.Midplane = True

# Sketch on XY plane
sketch11 = body.newObject("Sketcher::SketchObject", "Sketch010")
sketch11.AttachmentSupport = (doc.getObject("XY_Plane"), [""])
sketch11.MapMode = "FlatFace"
sketch11.addGeometry([
    Part.LineSegment(V(143, 16, 0), V(143, 10, 0)),  # 0
    Part.LineSegment(V(143, 10, 0), V(184, 10, 0)),  # 1
    Part.LineSegment(V(184, 10, 0), V(184, 16, 0)),  # 2
    Part.LineSegment(V(184, 16, 0), V(143, 16, 0)),  # 3
    Part.LineSegment(V(143, 3, 0), V(143, -3, 0)),  # 4
    Part.LineSegment(V(143, -3, 0), V(184, -3, 0)),  # 5
    Part.LineSegment(V(184, -3, 0), V(184, 3, 0)),  # 6
    Part.LineSegment(V(184, 3, 0), V(143, 3, 0)),  # 7
    Part.LineSegment(V(143, -10, 0), V(143, -16, 0)),  # 8
    Part.LineSegment(V(143, -16, 0), V(184, -16, 0)),  # 9
    Part.LineSegment(V(184, -16, 0), V(184, -10, 0)),  # 10
    Part.LineSegment(V(184, -10, 0), V(143, -10, 0)),  # 11
    Part.LineSegment(V(143, 32, 0), V(143, 22, 0)),  # 12
    Part.LineSegment(V(143, 22, 0), V(168, 22, 0)),  # 13
    Part.LineSegment(V(168, 22, 0), V(168, 32, 0)),  # 14
    Part.LineSegment(V(168, 32, 0), V(143, 32, 0)),  # 15
    Part.LineSegment(V(143, -22, 0), V(143, -32, 0)),  # 16
    Part.LineSegment(V(143, -32, 0), V(168, -32, 0)),  # 17
    Part.LineSegment(V(168, -32, 0), V(168, -22, 0)),  # 18
    Part.LineSegment(V(168, -22, 0), V(143, -22, 0)),  # 19
], False)
sketch11.addConstraint([
    Sketcher.Constraint("Coincident", 0, 2, 1, 1),
    Sketcher.Constraint("Coincident", 1, 2, 2, 1),
    Sketcher.Constraint("Coincident", 2, 2, 3, 1),
    Sketcher.Constraint("Coincident", 3, 2, 0, 1),
    Sketcher.Constraint("Coincident", 4, 2, 5, 1),
    Sketcher.Constraint("Coincident", 5, 2, 6, 1),
    Sketcher.Constraint("Coincident", 6, 2, 7, 1),
    Sketcher.Constraint("Coincident", 7, 2, 4, 1),
    Sketcher.Constraint("Coincident", 8, 2, 9, 1),
    Sketcher.Constraint("Coincident", 9, 2, 10, 1),
    Sketcher.Constraint("Coincident", 10, 2, 11, 1),
    Sketcher.Constraint("Coincident", 11, 2, 8, 1),
    Sketcher.Constraint("Coincident", 12, 2, 13, 1),
    Sketcher.Constraint("Coincident", 13, 2, 14, 1),
    Sketcher.Constraint("Coincident", 14, 2, 15, 1),
    Sketcher.Constraint("Coincident", 15, 2, 12, 1),
    Sketcher.Constraint("Coincident", 16, 2, 17, 1),
    Sketcher.Constraint("Coincident", 17, 2, 18, 1),
    Sketcher.Constraint("Coincident", 18, 2, 19, 1),
    Sketcher.Constraint("Coincident", 19, 2, 16, 1),
    Sketcher.Constraint("Vertical", 0),
    Sketcher.Constraint("Horizontal", 1),
    Sketcher.Constraint("Vertical", 2),
    Sketcher.Constraint("Horizontal", 3),
    Sketcher.Constraint("Vertical", 4),
    Sketcher.Constraint("Horizontal", 5),
    Sketcher.Constraint("Vertical", 6),
    Sketcher.Constraint("Horizontal", 7),
    Sketcher.Constraint("Vertical", 8),
    Sketcher.Constraint("Horizontal", 9),
    Sketcher.Constraint("Vertical", 10),
    Sketcher.Constraint("Horizontal", 11),
    Sketcher.Constraint("Vertical", 12),
    Sketcher.Constraint("Horizontal", 13),
    Sketcher.Constraint("Vertical", 14),
    Sketcher.Constraint("Horizontal", 15),
    Sketcher.Constraint("Vertical", 16),
    Sketcher.Constraint("Horizontal", 17),
    Sketcher.Constraint("Vertical", 18),
    Sketcher.Constraint("Horizontal", 19),
    Sketcher.Constraint("Symmetric", 3, 2, 8, 2, -1),
    Sketcher.Constraint("Symmetric", 1, 2, 10, 2, -1),
    Sketcher.Constraint("Symmetric", 15, 2, 16, 2, -1),
    Sketcher.Constraint("Symmetric", 13, 2, 18, 2, -1),
    Sketcher.Constraint("Vertical", 3, 2, 4, 2),
    Sketcher.Constraint("Vertical", 2, 2, 5, 2),
    Sketcher.Constraint("Vertical", 11, 2, 12, 2),
    Sketcher.Constraint("Equal", 2, 4),
    Sketcher.Constraint("DistanceX", 13, 1, 13, 2, Q("1 in")),
    Sketcher.Constraint("DistanceY", 8, 2, 0, 2, Q("1 in")),
    Sketcher.Constraint("DistanceY", 4, 2, 12, 2, Q("1 in")),
    Sketcher.Constraint("DistanceY", 19, 2, 7, 2, Q("1 in")),
    Sketcher.Constraint("DistanceY", 0, 2, 0, 1, Q("0.25 in")),
    Sketcher.Constraint("DistanceY", 12, 2, 12, 1, Q("0.375 in")),
    Sketcher.Constraint("DistanceX", -1, 1, 0, 2, Q("5.625 in")),
    Sketcher.Constraint("DistanceX", 1, 1, 1, 2, Q("40.748476 mm")),
])
pocket10 = body.newObject("PartDesign::Pocket", "Pocket009")
pocket10.Profile = sketch11
pocket10.Type = "ThroughAll"
pocket10.Reversed = True
doc.recompute()

mirrored2 = body.newObject("PartDesign::Mirrored", "Mirrored001")
mirrored2.Originals = [pocket10]
mirrored2.MirrorPlane = (doc.getObject("YZ_Plane"), [""])
body.Tip = mirrored2

# Sketch on XY plane
sketch12 = body.newObject("Sketcher::SketchObject", "Sketch011")
sketch12.AttachmentSupport = (doc.getObject("XY_Plane"), [""])
sketch12.MapMode = "FlatFace"
sketch12.AttachmentOffset = App.Placement(V(0, 0, 0.25 * 25.4), App.Rotation())
sketch12.addGeometry([
    Part.LineSegment(V(121, -32, 0), V(121, -57, 0)),  # 0
    Part.LineSegment(V(121, -57, 0), V(137, -57, 0)),  # 1
    Part.LineSegment(V(137, -57, 0), V(137, -32, 0)),  # 2
    Part.LineSegment(V(137, -32, 0), V(121, -32, 0)),  # 3
    Part.LineSegment(V(-137, -32, 0), V(-137, -57, 0)),  # 4
    Part.LineSegment(V(-137, -57, 0), V(-121, -57, 0)),  # 5
    Part.LineSegment(V(-121, -57, 0), V(-121, -32, 0)),  # 6
    Part.LineSegment(V(-121, -32, 0), V(-137, -32, 0)),  # 7
    Part.LineSegment(V(-137, 57, 0), V(-137, 32, 0)),  # 8
    Part.LineSegment(V(-137, 32, 0), V(-121, 32, 0)),  # 9
    Part.LineSegment(V(-121, 32, 0), V(-121, 57, 0)),  # 10
    Part.LineSegment(V(-121, 57, 0), V(-137, 57, 0)),  # 11
    Part.LineSegment(V(121, 57, 0), V(121, 32, 0)),  # 12
    Part.LineSegment(V(121, 32, 0), V(137, 32, 0)),  # 13
    Part.LineSegment(V(137, 32, 0), V(137, 57, 0)),  # 14
    Part.LineSegment(V(137, 57, 0), V(121, 57, 0)),  # 15
], False)
sketch12.addConstraint([
    Sketcher.Constraint("Coincident", 0, 2, 1, 1),
    Sketcher.Constraint("Coincident", 1, 2, 2, 1),
    Sketcher.Constraint("Coincident", 2, 2, 3, 1),
    Sketcher.Constraint("Coincident", 3, 2, 0, 1),
    Sketcher.Constraint("Coincident", 4, 2, 5, 1),
    Sketcher.Constraint("Coincident", 5, 2, 6, 1),
    Sketcher.Constraint("Coincident", 6, 2, 7, 1),
    Sketcher.Constraint("Coincident", 7, 2, 4, 1),
    Sketcher.Constraint("Coincident", 8, 2, 9, 1),
    Sketcher.Constraint("Coincident", 9, 2, 10, 1),
    Sketcher.Constraint("Coincident", 10, 2, 11, 1),
    Sketcher.Constraint("Coincident", 11, 2, 8, 1),
    Sketcher.Constraint("Coincident", 12, 2, 13, 1),
    Sketcher.Constraint("Coincident", 13, 2, 14, 1),
    Sketcher.Constraint("Coincident", 14, 2, 15, 1),
    Sketcher.Constraint("Coincident", 15, 2, 12, 1),
    Sketcher.Constraint("Vertical", 0),
    Sketcher.Constraint("Horizontal", 1),
    Sketcher.Constraint("Vertical", 2),
    Sketcher.Constraint("Horizontal", 3),
    Sketcher.Constraint("Vertical", 4),
    Sketcher.Constraint("Horizontal", 5),
    Sketcher.Constraint("Vertical", 6),
    Sketcher.Constraint("Horizontal", 7),
    Sketcher.Constraint("Vertical", 8),
    Sketcher.Constraint("Horizontal", 9),
    Sketcher.Constraint("Vertical", 10),
    Sketcher.Constraint("Horizontal", 11),
    Sketcher.Constraint("Vertical", 12),
    Sketcher.Constraint("Horizontal", 13),
    Sketcher.Constraint("Vertical", 14),
    Sketcher.Constraint("Horizontal", 15),
    Sketcher.Constraint("Symmetric", 2, 2, 8, 2, -1, 1),
    Sketcher.Constraint("Symmetric", 0, 2, 10, 2, -1, 1),
    Sketcher.Constraint("Symmetric", 6, 2, 12, 2, -1, 1),
    Sketcher.Constraint("Symmetric", 4, 2, 14, 2, -1, 1),
    Sketcher.Constraint("Symmetric", 1, 2, 4, 2, -2),
    Sketcher.Constraint("Symmetric", 3, 2, 6, 2, -2),
    Sketcher.Constraint("DistanceY", 0, 2, 0, 1, Q("1 in")),
    Sketcher.Constraint("DistanceX", 5, 2, 0, 2, Q("9.5 in")),
    Sketcher.Constraint("DistanceY", 7, 2, 8, 2, Q("2.5 in")),
    Sketcher.Constraint("DistanceX", 1, 1, 1, 2, Q("0.625 in")),
])
pocket11 = body.newObject("PartDesign::Pocket", "Pocket010")
pocket11.Profile = sketch12
pocket11.Type = "ThroughAll"

doc.recompute()
